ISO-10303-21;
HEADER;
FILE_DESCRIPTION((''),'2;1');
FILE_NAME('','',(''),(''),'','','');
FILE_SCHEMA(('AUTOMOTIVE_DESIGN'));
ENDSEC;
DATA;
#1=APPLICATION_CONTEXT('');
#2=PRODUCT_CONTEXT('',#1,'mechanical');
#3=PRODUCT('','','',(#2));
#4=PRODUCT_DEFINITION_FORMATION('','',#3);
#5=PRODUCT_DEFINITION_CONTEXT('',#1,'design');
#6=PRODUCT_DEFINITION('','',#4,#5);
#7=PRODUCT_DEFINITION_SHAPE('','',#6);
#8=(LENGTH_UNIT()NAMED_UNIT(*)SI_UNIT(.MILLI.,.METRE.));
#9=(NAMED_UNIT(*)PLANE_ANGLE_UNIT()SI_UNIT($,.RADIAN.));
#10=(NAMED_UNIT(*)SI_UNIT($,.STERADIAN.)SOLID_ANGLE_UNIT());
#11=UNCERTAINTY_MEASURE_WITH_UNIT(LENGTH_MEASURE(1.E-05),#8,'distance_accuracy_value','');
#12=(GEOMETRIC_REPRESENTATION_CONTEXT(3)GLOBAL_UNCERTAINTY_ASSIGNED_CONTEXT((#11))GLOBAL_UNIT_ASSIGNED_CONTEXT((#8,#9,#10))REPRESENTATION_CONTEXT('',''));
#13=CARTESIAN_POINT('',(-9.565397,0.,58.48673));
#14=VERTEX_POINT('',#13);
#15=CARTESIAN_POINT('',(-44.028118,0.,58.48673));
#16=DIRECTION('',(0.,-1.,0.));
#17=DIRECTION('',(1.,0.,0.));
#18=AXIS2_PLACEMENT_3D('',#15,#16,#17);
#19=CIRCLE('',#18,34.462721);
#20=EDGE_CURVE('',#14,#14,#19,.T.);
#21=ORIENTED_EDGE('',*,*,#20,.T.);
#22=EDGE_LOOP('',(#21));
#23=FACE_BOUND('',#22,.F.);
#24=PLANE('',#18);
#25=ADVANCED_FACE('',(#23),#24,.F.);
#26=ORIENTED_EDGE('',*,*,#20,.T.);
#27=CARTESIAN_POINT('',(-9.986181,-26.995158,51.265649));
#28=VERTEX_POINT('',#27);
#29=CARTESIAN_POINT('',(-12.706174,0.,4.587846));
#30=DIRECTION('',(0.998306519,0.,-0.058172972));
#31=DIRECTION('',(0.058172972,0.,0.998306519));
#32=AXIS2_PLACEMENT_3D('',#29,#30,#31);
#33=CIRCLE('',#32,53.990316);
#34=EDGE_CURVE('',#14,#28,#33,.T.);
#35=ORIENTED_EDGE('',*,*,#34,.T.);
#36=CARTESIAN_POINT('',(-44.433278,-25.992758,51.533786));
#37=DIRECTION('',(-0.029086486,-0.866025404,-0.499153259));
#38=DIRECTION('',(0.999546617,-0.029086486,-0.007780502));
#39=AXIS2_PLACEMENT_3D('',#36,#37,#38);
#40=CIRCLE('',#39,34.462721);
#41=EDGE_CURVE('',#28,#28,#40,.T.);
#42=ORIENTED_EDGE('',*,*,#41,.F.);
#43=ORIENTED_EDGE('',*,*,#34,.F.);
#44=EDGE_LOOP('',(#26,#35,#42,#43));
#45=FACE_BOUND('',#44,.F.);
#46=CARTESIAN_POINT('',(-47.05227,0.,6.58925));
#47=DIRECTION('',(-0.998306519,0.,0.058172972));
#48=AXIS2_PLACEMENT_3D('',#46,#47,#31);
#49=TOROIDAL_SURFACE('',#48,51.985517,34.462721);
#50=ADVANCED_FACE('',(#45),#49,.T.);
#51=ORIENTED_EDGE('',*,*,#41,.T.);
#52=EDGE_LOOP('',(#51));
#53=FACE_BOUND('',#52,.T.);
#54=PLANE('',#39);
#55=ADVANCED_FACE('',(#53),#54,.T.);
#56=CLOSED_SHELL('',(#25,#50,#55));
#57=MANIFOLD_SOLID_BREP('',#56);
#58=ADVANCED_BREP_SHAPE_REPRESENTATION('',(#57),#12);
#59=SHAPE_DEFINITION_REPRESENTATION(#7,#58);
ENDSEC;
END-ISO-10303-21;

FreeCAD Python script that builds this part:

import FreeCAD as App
import Part
import Sketcher
Q = App.Units.Quantity


def edges_at(feature, points):
    """Names of the edges that pass closest to the given points."""
    edges = feature.Shape.Edges
    near = lambda p: min(range(len(edges)), key=lambda i: edges[i].distToShape(Part.Vertex(*p))[0])
    return sorted({f"Edge{near(p) + 1}" for p in points})


def add_polygon(sketch, points):
    """Adds a closed chain of lines whose ends are joined by coincident constraints."""
    first, n = sketch.GeometryCount, len(points)
    for a, b in zip(points, points[1:] + points[:1]):
        sketch.addGeometry(Part.LineSegment(App.Vector(*a, 0), App.Vector(*b, 0)), False)
    for i in range(n):
        sketch.addConstraint(Sketcher.Constraint("Coincident", first + i, 2, first + (i + 1) % n, 1))

doc = App.newDocument("Part")
body = doc.addObject("PartDesign::Body", "Body")

# Sketch on XZ plane
sketch1 = body.newObject("Sketcher::SketchObject", "Sketch")
sketch1.AttachmentSupport = (doc.getObject("XZ_Plane"), [""])
sketch1.MapMode = "FlatFace"
sketch1.addGeometry(Part.Circle(App.Vector(0, 0, 0), App.Vector(0, 0, 1), 33.863403), False)  # 0
add_polygon(sketch1, [(17.201897, -11.531143), (-17.201897, -11.531143), (-17.201897, 11.531143), (17.201897, 11.531143)])  # lines 1-4
sketch1.addConstraint(Sketcher.Constraint("Horizontal", 1))
sketch1.addConstraint(Sketcher.Constraint("Vertical", 2))
sketch1.addConstraint(Sketcher.Constraint("Horizontal", 3))
sketch1.addConstraint(Sketcher.Constraint("Vertical", 4))
sketch1.addConstraint(Sketcher.Constraint("Coincident", 0, 3, -1, 1))
sketch1.addConstraint(Sketcher.Constraint("Symmetric", 1, 2, 3, 2, -1, 1))
sketch1.addConstraint(Sketcher.Constraint("Diameter", 0, Q("67.726806 mm")))
sketch1.addConstraint(Sketcher.Constraint("DistanceX", 1, 2, 1, 1, Q("34.403794 mm")))
sketch1.addConstraint(Sketcher.Constraint("DistanceY", 2, 1, 2, 2, Q("23.062286 mm")))
pad1 = body.newObject("PartDesign::Pad", "Pad")
pad1.Profile = sketch1
pad1.Length = 125
doc.recompute()

chamfer = body.newObject("PartDesign::Chamfer", "Chamfer")
chamfer.Base = (pad1, edges_at(pad1, [(-33.863, -125, 0)]))
chamfer.Size = 5
doc.recompute()

fillet = body.newObject("PartDesign::Fillet", "Fillet")
fillet.Base = (chamfer, edges_at(chamfer, [
    (0, -125, 11.531),
    (-17.202, -125, 0),
    (0, -125, -11.531),
    (17.202, -125, 0),
]))
fillet.Radius = 5
body2 = doc.addObject("PartDesign::Body", "Body001")

# Sketch on XZ plane
sketch2 = body2.newObject("Sketcher::SketchObject", "Sketch001")
sketch2.AttachmentSupport = (doc.getObject("XZ_Plane001"), [""])
sketch2.MapMode = "FlatFace"
sketch2.addGeometry(Part.Circle(App.Vector(-44.028118, 58.48673, 0), App.Vector(0, 0, 1), 34.462721), False)
sketch2.addGeometry(Part.LineSegment(App.Vector(-47.05227, 6.58925, 0), App.Vector(-37.069205, 6.00752, 0)), True)  # axis
sketch2.addConstraint(Sketcher.Constraint("Distance", 1, Q("10 mm")))
sketch2.addConstraint(Sketcher.Constraint("Diameter", 0, Q("68.925442 mm")))
sketch2.addConstraint(Sketcher.Constraint("DistanceY", -1, 1, 0, 3, Q("58.48673 mm")))
sketch2.addConstraint(Sketcher.Constraint("DistanceX", 1, 1, -1, 1, Q("47.05227 mm")))
sketch2.addConstraint(Sketcher.Constraint("DistanceY", -1, 1, 1, 1, Q("6.58925 mm")))
sketch2.addConstraint(Sketcher.Constraint("DistanceY", -1, 1, 1, 2, Q("6.00752 mm")))
sketch2.addConstraint(Sketcher.Constraint("DistanceX", 0, 3, -1, 1, Q("44.028118 mm")))
revolution = body2.newObject("PartDesign::Revolution", "Revolution")
revolution.Profile = sketch2
revolution.ReferenceAxis = (sketch2, ["Axis0"])
revolution.Angle = 30
body.Visibility = False

doc.recompute()
